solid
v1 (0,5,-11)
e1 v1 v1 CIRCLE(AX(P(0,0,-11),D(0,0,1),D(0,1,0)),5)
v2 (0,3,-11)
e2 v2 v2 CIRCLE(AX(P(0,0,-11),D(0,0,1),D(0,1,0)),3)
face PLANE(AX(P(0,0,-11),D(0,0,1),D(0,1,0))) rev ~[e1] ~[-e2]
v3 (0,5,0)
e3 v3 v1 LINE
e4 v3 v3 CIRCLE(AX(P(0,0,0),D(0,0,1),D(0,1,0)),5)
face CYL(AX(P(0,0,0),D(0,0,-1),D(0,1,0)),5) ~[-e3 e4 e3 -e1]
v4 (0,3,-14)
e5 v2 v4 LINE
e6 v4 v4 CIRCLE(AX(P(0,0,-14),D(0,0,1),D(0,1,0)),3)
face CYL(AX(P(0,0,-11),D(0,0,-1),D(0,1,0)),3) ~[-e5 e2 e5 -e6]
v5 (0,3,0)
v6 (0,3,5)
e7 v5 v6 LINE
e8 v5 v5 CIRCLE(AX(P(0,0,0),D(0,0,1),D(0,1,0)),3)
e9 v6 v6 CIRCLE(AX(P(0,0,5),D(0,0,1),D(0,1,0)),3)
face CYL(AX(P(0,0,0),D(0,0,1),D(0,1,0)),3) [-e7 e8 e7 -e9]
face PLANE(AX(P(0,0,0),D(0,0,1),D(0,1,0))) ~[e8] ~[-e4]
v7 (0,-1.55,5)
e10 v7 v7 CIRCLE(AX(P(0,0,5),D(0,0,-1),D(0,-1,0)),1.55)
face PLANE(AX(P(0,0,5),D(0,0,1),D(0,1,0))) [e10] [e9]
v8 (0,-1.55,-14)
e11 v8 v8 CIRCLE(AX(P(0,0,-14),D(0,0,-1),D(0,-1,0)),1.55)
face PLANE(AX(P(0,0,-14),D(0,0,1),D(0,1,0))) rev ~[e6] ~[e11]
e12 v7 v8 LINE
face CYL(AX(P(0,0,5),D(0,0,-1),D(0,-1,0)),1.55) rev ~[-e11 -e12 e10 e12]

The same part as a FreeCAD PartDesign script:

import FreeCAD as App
import Part
import Sketcher
from FreeCAD import Vector

doc = App.newDocument("Part")
params = doc.addObject("Spreadsheet::Sheet", "Params")
for row, (alias, value) in enumerate([
    ("sketch1_width", "3 mm"),
    ("sketch1_height", "11 mm"),
    ("sketch1_height2", "5 mm"),
    ("revolution_angle", "360 deg"),
    ("sketch2_diameter", "3.1 mm"),
    ("hole_diameter", "3.1 mm"),
], start=1):
    params.set(f"A{row}", alias)
    params.set(f"B{row}", "=" + value)
    params.setAlias(f"B{row}", alias)

body = doc.addObject("PartDesign::Body", "Body")

# Sketch on YZ plane
sketch1 = body.newObject("Sketcher::SketchObject", "Sketch")
sketch1.AttachmentSupport = (doc.getObject("YZ_Plane"), [""])
sketch1.MapMode = "FlatFace"
sketch1.addGeometry(Part.LineSegment(Vector(0, 5, 0), Vector(0, -14, 0)), False)
sketch1.addGeometry(Part.LineSegment(Vector(0, -14, 0), Vector(3, -14, 0)), False)
sketch1.addGeometry(Part.LineSegment(Vector(3, -14, 0), Vector(3, -11, 0)), False)
sketch1.addGeometry(Part.LineSegment(Vector(3, -11, 0), Vector(5, -11, 0)), False)
sketch1.addGeometry(Part.LineSegment(Vector(5, -11, 0), Vector(5, 0, 0)), False)
sketch1.addGeometry(Part.LineSegment(Vector(5, 0, 0), Vector(3, 0, 0)), False)
sketch1.addGeometry(Part.LineSegment(Vector(3, 0, 0), Vector(3, 5, 0)), False)
sketch1.addGeometry(Part.LineSegment(Vector(3, 5, 0), Vector(0, 5, 0)), False)
sketch1.addConstraint(Sketcher.Constraint("Coincident", 0, 2, 1, 1))
sketch1.addConstraint(Sketcher.Constraint("Coincident", 1, 2, 2, 1))
sketch1.addConstraint(Sketcher.Constraint("Coincident", 2, 2, 3, 1))
sketch1.addConstraint(Sketcher.Constraint("Coincident", 3, 2, 4, 1))
sketch1.addConstraint(Sketcher.Constraint("Coincident", 4, 2, 5, 1))
sketch1.addConstraint(Sketcher.Constraint("Coincident", 5, 2, 6, 1))
sketch1.addConstraint(Sketcher.Constraint("Coincident", 6, 2, 7, 1))
sketch1.addConstraint(Sketcher.Constraint("Coincident", 7, 2, 0, 1))
sketch1.addConstraint(Sketcher.Constraint("Vertical", 0))
sketch1.addConstraint(Sketcher.Constraint("Horizontal", 1))
sketch1.addConstraint(Sketcher.Constraint("Vertical", 2))
sketch1.addConstraint(Sketcher.Constraint("Horizontal", 3))
sketch1.addConstraint(Sketcher.Constraint("Vertical", 4))
sketch1.addConstraint(Sketcher.Constraint("Horizontal", 5))
sketch1.addConstraint(Sketcher.Constraint("Vertical", 6))
sketch1.addConstraint(Sketcher.Constraint("Horizontal", 7))
sketch1.addConstraint(Sketcher.Constraint("PointOnObject", 0, 2, -2))
sketch1.addConstraint(Sketcher.Constraint("PointOnObject", 4, 2, -1))
sketch1.addConstraint(Sketcher.Constraint("Vertical", 2, 2, 5, 2))
sketch1.addConstraint(Sketcher.Constraint("Equal", 7, 2))
sketch1.addConstraint(Sketcher.Constraint("DistanceX", 1, 1, 1, 2, 3.0))
sketch1.addConstraint(Sketcher.Constraint("DistanceY", 4, 1, 4, 2, 11.0))
sketch1.addConstraint(Sketcher.Constraint("DistanceY", 6, 1, 6, 2, 5.0))
sketch1.addConstraint(Sketcher.Constraint("DistanceX", -1, 1, 3, 2, 5.0))
sketch1.setExpression("Constraints[20]", "Params.sketch1_width")
sketch1.setExpression("Constraints[21]", "Params.sketch1_height")
sketch1.setExpression("Constraints[22]", "Params.sketch1_height2")
revolution = body.newObject("PartDesign::Revolution", "Revolution")
revolution.Profile = sketch1
revolution.ReferenceAxis = (sketch1, ["V_Axis"])
revolution.setExpression("Angle", "Params.revolution_angle")

# Sketch on XY plane
sketch2 = body.newObject("Sketcher::SketchObject", "Sketch001")
sketch2.AttachmentSupport = (doc.getObject("XY_Plane"), [""])
sketch2.MapMode = "FlatFace"
sketch2.AttachmentOffset = App.Placement(Vector(0, 0, 5), App.Rotation())
sketch2.addGeometry(Part.Circle(Vector(0, 0, 0), Vector(0, 0, 1), 1.6), False)
sketch2.addConstraint(Sketcher.Constraint("Coincident", 0, 3, -1, 1))
sketch2.addConstraint(Sketcher.Constraint("Diameter", 0, 3.1))
sketch2.setExpression("Constraints[1]", "Params.sketch2_diameter")
doc.recompute()
hole = body.newObject("PartDesign::Hole", "Hole")
hole.Profile = sketch2
hole.ThreadType = "None"
hole.setExpression("Diameter", "Params.hole_diameter")
hole.DepthType = "ThroughAll"

doc.recompute()
